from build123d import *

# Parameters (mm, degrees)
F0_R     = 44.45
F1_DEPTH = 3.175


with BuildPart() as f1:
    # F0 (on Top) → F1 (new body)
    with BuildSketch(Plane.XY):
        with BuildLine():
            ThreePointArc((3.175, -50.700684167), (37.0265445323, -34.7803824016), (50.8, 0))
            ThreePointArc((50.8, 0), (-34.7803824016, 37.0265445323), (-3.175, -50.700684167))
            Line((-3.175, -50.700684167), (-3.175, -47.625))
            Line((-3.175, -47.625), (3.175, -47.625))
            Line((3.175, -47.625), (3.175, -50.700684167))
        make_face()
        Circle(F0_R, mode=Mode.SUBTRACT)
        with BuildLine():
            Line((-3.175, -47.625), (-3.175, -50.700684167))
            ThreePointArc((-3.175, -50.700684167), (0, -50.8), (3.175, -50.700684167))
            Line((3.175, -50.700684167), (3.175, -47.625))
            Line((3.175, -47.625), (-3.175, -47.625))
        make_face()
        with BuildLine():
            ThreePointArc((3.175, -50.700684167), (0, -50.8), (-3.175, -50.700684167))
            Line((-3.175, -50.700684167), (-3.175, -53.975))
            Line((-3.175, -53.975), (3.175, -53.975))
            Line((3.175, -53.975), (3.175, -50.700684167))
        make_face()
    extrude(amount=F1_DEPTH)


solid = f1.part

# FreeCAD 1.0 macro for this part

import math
import FreeCAD as App
import Part
import Sketcher
from FreeCAD import Vector
Q = App.Units.Quantity

doc = App.newDocument("Part")
body = doc.addObject("PartDesign::Body", "Body")

sketch1 = body.newObject("Sketcher::SketchObject", "Sketch")
sketch1.AttachmentSupport = (doc.getObject("XY_Plane"), [""])
sketch1.MapMode = "FlatFace"
sketch1.addGeometry(Part.ArcOfCircle(Part.Circle(Vector(0, 0, 0), Vector(0, 0, 1), 50.8), math.radians(-86.416678), math.radians(0)), False)
sketch1.addGeometry(Part.ArcOfCircle(Part.Circle(Vector(0, 0, 0), Vector(0, 0, 1), 50.8), math.radians(0), math.radians(266.416678)), False)
sketch1.addGeometry(Part.LineSegment(Vector(-3.175, -50.700684, 0), Vector(-3.175, -53.975, 0)), False)
sketch1.addGeometry(Part.LineSegment(Vector(-3.175, -53.975, 0), Vector(3.175, -53.975, 0)), False)
sketch1.addGeometry(Part.LineSegment(Vector(3.175, -53.975, 0), Vector(3.175, -50.700684, 0)), False)
sketch1.addGeometry(Part.Circle(Vector(0, 0, 0), Vector(0, 0, 1), 44.45), False)
sketch1.addConstraint(Sketcher.Constraint("Tangent", 0, 2, 1, 1))
sketch1.addConstraint(Sketcher.Constraint("Coincident", 1, 2, 2, 1))
sketch1.addConstraint(Sketcher.Constraint("Coincident", 2, 2, 3, 1))
sketch1.addConstraint(Sketcher.Constraint("Coincident", 3, 2, 4, 1))
sketch1.addConstraint(Sketcher.Constraint("Coincident", 4, 2, 0, 1))
sketch1.addConstraint(Sketcher.Constraint("Vertical", 2))
sketch1.addConstraint(Sketcher.Constraint("Horizontal", 3))
sketch1.addConstraint(Sketcher.Constraint("Vertical", 4))
sketch1.addConstraint(Sketcher.Constraint("Coincident", 0, 3, -1, 1))
sketch1.addConstraint(Sketcher.Constraint("Coincident", 5, 3, -1, 1))
sketch1.addConstraint(Sketcher.Constraint("Equal", 0, 1))
sketch1.addConstraint(Sketcher.Constraint("PointOnObject", 0, 2, -1))
sketch1.addConstraint(Sketcher.Constraint("Horizontal", 1, 2, 4, 2))
sketch1.addConstraint(Sketcher.Constraint("Radius", 0, Q("2 in")))
sketch1.addConstraint(Sketcher.Constraint("Diameter", 5, Q("3.5 in")))
sketch1.addConstraint(Sketcher.Constraint("DistanceX", 3, 1, 3, 2, Q("0.25 in")))
sketch1.addConstraint(Sketcher.Constraint("DistanceY", 2, 2, -1, 1, Q("2.125 in")))
pad1 = body.newObject("PartDesign::Pad", "Pad")
pad1.Profile = sketch1
pad1.Length = Q("0.125 in")

doc.recompute()
